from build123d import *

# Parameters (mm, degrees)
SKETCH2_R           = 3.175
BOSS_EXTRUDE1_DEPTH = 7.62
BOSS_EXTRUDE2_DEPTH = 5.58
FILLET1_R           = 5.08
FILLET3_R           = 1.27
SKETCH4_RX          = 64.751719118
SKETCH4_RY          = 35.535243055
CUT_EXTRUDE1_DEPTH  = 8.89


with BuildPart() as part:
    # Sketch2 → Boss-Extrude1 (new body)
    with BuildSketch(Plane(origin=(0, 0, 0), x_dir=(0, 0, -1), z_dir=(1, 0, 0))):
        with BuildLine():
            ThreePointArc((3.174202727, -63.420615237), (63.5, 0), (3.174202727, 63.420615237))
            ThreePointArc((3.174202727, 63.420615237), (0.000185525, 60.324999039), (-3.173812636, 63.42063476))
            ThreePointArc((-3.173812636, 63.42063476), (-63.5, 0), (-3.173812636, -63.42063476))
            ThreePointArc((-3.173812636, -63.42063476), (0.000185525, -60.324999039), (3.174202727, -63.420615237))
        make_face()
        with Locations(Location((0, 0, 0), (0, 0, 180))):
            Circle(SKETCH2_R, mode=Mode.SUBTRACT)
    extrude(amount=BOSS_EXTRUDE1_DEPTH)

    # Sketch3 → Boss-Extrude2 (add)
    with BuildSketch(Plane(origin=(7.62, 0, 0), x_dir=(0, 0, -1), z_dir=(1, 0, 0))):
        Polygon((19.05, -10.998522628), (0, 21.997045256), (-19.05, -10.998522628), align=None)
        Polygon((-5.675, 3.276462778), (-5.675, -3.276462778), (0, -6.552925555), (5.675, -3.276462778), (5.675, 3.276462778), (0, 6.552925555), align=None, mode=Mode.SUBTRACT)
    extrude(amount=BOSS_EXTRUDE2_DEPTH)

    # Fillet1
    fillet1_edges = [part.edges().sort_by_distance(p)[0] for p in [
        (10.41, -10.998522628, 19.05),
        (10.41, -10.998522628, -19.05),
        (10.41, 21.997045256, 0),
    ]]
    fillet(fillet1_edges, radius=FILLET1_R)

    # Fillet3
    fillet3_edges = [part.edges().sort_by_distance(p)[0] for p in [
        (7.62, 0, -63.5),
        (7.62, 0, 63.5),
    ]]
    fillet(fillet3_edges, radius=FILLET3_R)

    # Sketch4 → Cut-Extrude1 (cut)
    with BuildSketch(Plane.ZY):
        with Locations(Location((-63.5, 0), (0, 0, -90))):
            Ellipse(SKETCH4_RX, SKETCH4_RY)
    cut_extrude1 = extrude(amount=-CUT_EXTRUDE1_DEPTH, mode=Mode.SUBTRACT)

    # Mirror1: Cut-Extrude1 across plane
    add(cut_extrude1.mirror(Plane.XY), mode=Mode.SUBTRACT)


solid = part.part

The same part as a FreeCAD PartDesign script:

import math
import FreeCAD as App
import Part
import Sketcher

V = App.Vector
Q = App.Units.Quantity


def edges_at(feature, points):
    """Names of the edges that pass closest to the given points."""
    edges = feature.Shape.Edges
    near = lambda p: min(range(len(edges)), key=lambda i: edges[i].distToShape(Part.Vertex(*p))[0])
    return sorted({f"Edge{near(p) + 1}" for p in points})

doc = App.newDocument("Part")
params = doc.addObject("Spreadsheet::Sheet", "Params")
for row, (alias, value) in enumerate([
    ("sketch1_radius", "2.5 in"),
    ("sketch1_diameter", "0.25 in"),
    ("pad1_length", "0.3 in"),
    ("sketch2_height", "1.5 in"),
    ("pad2_length", "5.58 mm"),
    ("fillet_radius", "0.2 in"),
    ("fillet2_radius", "0.05 in"),
    ("pocket1_length", "0.35 in"),
], start=1):
    params.set(f"A{row}", alias)
    params.set(f"B{row}", "=" + value)
    params.setAlias(f"B{row}", alias)

body = doc.addObject("PartDesign::Body", "Body")

# Sketch on YZ plane
sketch1 = body.newObject("Sketcher::SketchObject", "Sketch")
sketch1.AttachmentSupport = (doc.getObject("YZ_Plane"), [""])
sketch1.MapMode = "FlatFace"
sketch1.addGeometry(Part.ArcOfCircle(Part.Circle(V(0, 0, 0), V(0, 0, 1), 63.5), math.radians(-177.134736), math.radians(-2.865264)), False)
sketch1.addGeometry(Part.ArcOfCircle(Part.Circle(V(63.499999, -0.000195, 0), V(0, 0, 1), 3.175), math.radians(91.43235), math.radians(268.567297)), False)
sketch1.addGeometry(Part.ArcOfCircle(Part.Circle(V(0, 0, 0), V(0, 0, 1), 63.5), math.radians(2.864911), math.radians(177.135089)), False)
sketch1.addGeometry(Part.ArcOfCircle(Part.Circle(V(-63.499999, -0.000195, 0), V(0, 0, 1), 3.175), math.radians(-88.567297), math.radians(88.56765)), False)
sketch1.addGeometry(Part.Circle(V(0, 0, 0), V(0, 0, 1), 3.175), False)
sketch1.addConstraint(Sketcher.Constraint("Coincident", 0, 2, 1, 2))
sketch1.addConstraint(Sketcher.Constraint("Coincident", 1, 1, 2, 1))
sketch1.addConstraint(Sketcher.Constraint("Coincident", 2, 2, 3, 2))
sketch1.addConstraint(Sketcher.Constraint("Coincident", 3, 1, 0, 1))
sketch1.addConstraint(Sketcher.Constraint("Coincident", 0, 3, -1, 1))
sketch1.addConstraint(Sketcher.Constraint("Coincident", 2, 3, -1, 1))
sketch1.addConstraint(Sketcher.Constraint("Coincident", 4, 3, -1, 1))
sketch1.addConstraint(Sketcher.Constraint("Equal", 0, 2))
sketch1.addConstraint(Sketcher.Constraint("Equal", 1, 3))
sketch1.addConstraint(Sketcher.Constraint("Equal", 3, 4))
sketch1.addConstraint(Sketcher.Constraint("Symmetric", 1, 3, 3, 3, -2))
sketch1.addConstraint(Sketcher.Constraint("Radius", 0, Q("2.5 in")))
sketch1.addConstraint(Sketcher.Constraint("Diameter", 4, Q("0.25 in")))
sketch1.addConstraint(Sketcher.Constraint("DistanceX", 3, 3, 1, 3, Q("4.9999999 in")))
sketch1.addConstraint(Sketcher.Constraint("DistanceX", 2, 2, 1, 1, 126.84127))
sketch1.setExpression("Constraints[11]", "Params.sketch1_radius")
sketch1.setExpression("Constraints[12]", "Params.sketch1_diameter")
pad1 = body.newObject("PartDesign::Pad", "Pad")
pad1.Profile = sketch1
pad1.setExpression("Length", "Params.pad1_length")

# Sketch on YZ plane
sketch2 = body.newObject("Sketcher::SketchObject", "Sketch001")
sketch2.AttachmentSupport = (doc.getObject("YZ_Plane"), [""])
sketch2.MapMode = "FlatFace"
sketch2.AttachmentOffset = App.Placement(V(0, 0, 0.3 * 25.4), App.Rotation())
sketch2.addGeometry(Part.LineSegment(V(-10.998523, -19.05, 0), V(21.997045, 0, 0)), False)
sketch2.addGeometry(Part.LineSegment(V(21.997045, 0, 0), V(-10.998523, 19.05, 0)), False)
sketch2.addGeometry(Part.LineSegment(V(-10.998523, 19.05, 0), V(-10.998523, -19.05, 0)), False)
sketch2.addGeometry(Part.LineSegment(V(-3.276463, 5.675, 0), V(3.276463, 5.675, 0)), False)
sketch2.addGeometry(Part.LineSegment(V(3.276463, 5.675, 0), V(6.552926, 0, 0)), False)
sketch2.addGeometry(Part.LineSegment(V(6.552926, 0, 0), V(3.276463, -5.675, 0)), False)
sketch2.addGeometry(Part.LineSegment(V(3.276463, -5.675, 0), V(-3.276463, -5.675, 0)), False)
sketch2.addGeometry(Part.LineSegment(V(-3.276463, -5.675, 0), V(-6.552926, 0, 0)), False)
sketch2.addGeometry(Part.LineSegment(V(-6.552926, 0, 0), V(-3.276463, 5.675, 0)), False)
sketch2.addConstraint(Sketcher.Constraint("Coincident", 0, 2, 1, 1))
sketch2.addConstraint(Sketcher.Constraint("Coincident", 1, 2, 2, 1))
sketch2.addConstraint(Sketcher.Constraint("Coincident", 2, 2, 0, 1))
sketch2.addConstraint(Sketcher.Constraint("Coincident", 3, 2, 4, 1))
sketch2.addConstraint(Sketcher.Constraint("Coincident", 4, 2, 5, 1))
sketch2.addConstraint(Sketcher.Constraint("Coincident", 5, 2, 6, 1))
sketch2.addConstraint(Sketcher.Constraint("Coincident", 6, 2, 7, 1))
sketch2.addConstraint(Sketcher.Constraint("Coincident", 7, 2, 8, 1))
sketch2.addConstraint(Sketcher.Constraint("Coincident", 8, 2, 3, 1))
sketch2.addConstraint(Sketcher.Constraint("Vertical", 2))
sketch2.addConstraint(Sketcher.Constraint("Horizontal", 3))
sketch2.addConstraint(Sketcher.Constraint("Horizontal", 6))
sketch2.addConstraint(Sketcher.Constraint("Symmetric", 3, 2, 6, 2, -1, 1))
sketch2.addConstraint(Sketcher.Constraint("Symmetric", 4, 2, 7, 2, -1, 1))
sketch2.addConstraint(Sketcher.Constraint("PointOnObject", 0, 2, -1))
sketch2.addConstraint(Sketcher.Constraint("PointOnObject", 4, 2, -1))
sketch2.addConstraint(Sketcher.Constraint("Perpendicular", 0, 4))
sketch2.addConstraint(Sketcher.Constraint("Perpendicular", 1, 5))
sketch2.addConstraint(Sketcher.Constraint("Parallel", 5, 8))
sketch2.addConstraint(Sketcher.Constraint("Vertical", 3, 2, 5, 2))
sketch2.addConstraint(Sketcher.Constraint("DistanceY", 2, 2, 2, 1, Q("1.5 in")))
sketch2.addConstraint(Sketcher.Constraint("Angle", 0, Q("30 deg")))
sketch2.addConstraint(Sketcher.Constraint("DistanceY", -1, 1, 3, 2, 5.675))
sketch2.addConstraint(Sketcher.Constraint("DistanceX", 3, 1, 3, 2, 6.552926))
sketch2.addConstraint(Sketcher.Constraint("DistanceX", 4, 2, 0, 2, 15.44412))
sketch2.setExpression("Constraints[20]", "Params.sketch2_height")
pad2 = body.newObject("PartDesign::Pad", "Pad001")
pad2.Profile = sketch2
pad2.setExpression("Length", "Params.pad2_length")
doc.recompute()

fillet = body.newObject("PartDesign::Fillet", "Fillet")
fillet.Base = (pad2, edges_at(pad2, [(10.41, -10.999, 19.05), (10.41, -10.999, -19.05), (10.41, 21.997, 0)]))
fillet.setExpression("Radius", "Params.fillet_radius")
doc.recompute()

fillet2 = body.newObject("PartDesign::Fillet", "Fillet001")
fillet2.Base = (fillet, edges_at(fillet, [(7.62, 0, -63.5), (7.62, 0, 63.5)]))
fillet2.setExpression("Radius", "Params.fillet2_radius")

# Sketch on YZ plane
sketch3 = body.newObject("Sketcher::SketchObject", "Sketch002")
sketch3.AttachmentSupport = (doc.getObject("YZ_Plane"), [""])
sketch3.MapMode = "FlatFace"
sketch3.addGeometry(Part.Ellipse(V(-64.751719, -63.5, 0), V(0, -99.035243, 0), V(0, -63.5, 0)), False)
sketch3.addConstraint(Sketcher.Constraint("Block", 0))
pocket1 = body.newObject("PartDesign::Pocket", "Pocket")
pocket1.Profile = sketch3
pocket1.setExpression("Length", "Params.pocket1_length")
pocket1.Reversed = True
doc.recompute()

mirrored = body.newObject("PartDesign::Mirrored", "Mirrored")
mirrored.Originals = [pocket1]
mirrored.MirrorPlane = (doc.getObject("XY_Plane"), [""])
body.Tip = mirrored

doc.recompute()
